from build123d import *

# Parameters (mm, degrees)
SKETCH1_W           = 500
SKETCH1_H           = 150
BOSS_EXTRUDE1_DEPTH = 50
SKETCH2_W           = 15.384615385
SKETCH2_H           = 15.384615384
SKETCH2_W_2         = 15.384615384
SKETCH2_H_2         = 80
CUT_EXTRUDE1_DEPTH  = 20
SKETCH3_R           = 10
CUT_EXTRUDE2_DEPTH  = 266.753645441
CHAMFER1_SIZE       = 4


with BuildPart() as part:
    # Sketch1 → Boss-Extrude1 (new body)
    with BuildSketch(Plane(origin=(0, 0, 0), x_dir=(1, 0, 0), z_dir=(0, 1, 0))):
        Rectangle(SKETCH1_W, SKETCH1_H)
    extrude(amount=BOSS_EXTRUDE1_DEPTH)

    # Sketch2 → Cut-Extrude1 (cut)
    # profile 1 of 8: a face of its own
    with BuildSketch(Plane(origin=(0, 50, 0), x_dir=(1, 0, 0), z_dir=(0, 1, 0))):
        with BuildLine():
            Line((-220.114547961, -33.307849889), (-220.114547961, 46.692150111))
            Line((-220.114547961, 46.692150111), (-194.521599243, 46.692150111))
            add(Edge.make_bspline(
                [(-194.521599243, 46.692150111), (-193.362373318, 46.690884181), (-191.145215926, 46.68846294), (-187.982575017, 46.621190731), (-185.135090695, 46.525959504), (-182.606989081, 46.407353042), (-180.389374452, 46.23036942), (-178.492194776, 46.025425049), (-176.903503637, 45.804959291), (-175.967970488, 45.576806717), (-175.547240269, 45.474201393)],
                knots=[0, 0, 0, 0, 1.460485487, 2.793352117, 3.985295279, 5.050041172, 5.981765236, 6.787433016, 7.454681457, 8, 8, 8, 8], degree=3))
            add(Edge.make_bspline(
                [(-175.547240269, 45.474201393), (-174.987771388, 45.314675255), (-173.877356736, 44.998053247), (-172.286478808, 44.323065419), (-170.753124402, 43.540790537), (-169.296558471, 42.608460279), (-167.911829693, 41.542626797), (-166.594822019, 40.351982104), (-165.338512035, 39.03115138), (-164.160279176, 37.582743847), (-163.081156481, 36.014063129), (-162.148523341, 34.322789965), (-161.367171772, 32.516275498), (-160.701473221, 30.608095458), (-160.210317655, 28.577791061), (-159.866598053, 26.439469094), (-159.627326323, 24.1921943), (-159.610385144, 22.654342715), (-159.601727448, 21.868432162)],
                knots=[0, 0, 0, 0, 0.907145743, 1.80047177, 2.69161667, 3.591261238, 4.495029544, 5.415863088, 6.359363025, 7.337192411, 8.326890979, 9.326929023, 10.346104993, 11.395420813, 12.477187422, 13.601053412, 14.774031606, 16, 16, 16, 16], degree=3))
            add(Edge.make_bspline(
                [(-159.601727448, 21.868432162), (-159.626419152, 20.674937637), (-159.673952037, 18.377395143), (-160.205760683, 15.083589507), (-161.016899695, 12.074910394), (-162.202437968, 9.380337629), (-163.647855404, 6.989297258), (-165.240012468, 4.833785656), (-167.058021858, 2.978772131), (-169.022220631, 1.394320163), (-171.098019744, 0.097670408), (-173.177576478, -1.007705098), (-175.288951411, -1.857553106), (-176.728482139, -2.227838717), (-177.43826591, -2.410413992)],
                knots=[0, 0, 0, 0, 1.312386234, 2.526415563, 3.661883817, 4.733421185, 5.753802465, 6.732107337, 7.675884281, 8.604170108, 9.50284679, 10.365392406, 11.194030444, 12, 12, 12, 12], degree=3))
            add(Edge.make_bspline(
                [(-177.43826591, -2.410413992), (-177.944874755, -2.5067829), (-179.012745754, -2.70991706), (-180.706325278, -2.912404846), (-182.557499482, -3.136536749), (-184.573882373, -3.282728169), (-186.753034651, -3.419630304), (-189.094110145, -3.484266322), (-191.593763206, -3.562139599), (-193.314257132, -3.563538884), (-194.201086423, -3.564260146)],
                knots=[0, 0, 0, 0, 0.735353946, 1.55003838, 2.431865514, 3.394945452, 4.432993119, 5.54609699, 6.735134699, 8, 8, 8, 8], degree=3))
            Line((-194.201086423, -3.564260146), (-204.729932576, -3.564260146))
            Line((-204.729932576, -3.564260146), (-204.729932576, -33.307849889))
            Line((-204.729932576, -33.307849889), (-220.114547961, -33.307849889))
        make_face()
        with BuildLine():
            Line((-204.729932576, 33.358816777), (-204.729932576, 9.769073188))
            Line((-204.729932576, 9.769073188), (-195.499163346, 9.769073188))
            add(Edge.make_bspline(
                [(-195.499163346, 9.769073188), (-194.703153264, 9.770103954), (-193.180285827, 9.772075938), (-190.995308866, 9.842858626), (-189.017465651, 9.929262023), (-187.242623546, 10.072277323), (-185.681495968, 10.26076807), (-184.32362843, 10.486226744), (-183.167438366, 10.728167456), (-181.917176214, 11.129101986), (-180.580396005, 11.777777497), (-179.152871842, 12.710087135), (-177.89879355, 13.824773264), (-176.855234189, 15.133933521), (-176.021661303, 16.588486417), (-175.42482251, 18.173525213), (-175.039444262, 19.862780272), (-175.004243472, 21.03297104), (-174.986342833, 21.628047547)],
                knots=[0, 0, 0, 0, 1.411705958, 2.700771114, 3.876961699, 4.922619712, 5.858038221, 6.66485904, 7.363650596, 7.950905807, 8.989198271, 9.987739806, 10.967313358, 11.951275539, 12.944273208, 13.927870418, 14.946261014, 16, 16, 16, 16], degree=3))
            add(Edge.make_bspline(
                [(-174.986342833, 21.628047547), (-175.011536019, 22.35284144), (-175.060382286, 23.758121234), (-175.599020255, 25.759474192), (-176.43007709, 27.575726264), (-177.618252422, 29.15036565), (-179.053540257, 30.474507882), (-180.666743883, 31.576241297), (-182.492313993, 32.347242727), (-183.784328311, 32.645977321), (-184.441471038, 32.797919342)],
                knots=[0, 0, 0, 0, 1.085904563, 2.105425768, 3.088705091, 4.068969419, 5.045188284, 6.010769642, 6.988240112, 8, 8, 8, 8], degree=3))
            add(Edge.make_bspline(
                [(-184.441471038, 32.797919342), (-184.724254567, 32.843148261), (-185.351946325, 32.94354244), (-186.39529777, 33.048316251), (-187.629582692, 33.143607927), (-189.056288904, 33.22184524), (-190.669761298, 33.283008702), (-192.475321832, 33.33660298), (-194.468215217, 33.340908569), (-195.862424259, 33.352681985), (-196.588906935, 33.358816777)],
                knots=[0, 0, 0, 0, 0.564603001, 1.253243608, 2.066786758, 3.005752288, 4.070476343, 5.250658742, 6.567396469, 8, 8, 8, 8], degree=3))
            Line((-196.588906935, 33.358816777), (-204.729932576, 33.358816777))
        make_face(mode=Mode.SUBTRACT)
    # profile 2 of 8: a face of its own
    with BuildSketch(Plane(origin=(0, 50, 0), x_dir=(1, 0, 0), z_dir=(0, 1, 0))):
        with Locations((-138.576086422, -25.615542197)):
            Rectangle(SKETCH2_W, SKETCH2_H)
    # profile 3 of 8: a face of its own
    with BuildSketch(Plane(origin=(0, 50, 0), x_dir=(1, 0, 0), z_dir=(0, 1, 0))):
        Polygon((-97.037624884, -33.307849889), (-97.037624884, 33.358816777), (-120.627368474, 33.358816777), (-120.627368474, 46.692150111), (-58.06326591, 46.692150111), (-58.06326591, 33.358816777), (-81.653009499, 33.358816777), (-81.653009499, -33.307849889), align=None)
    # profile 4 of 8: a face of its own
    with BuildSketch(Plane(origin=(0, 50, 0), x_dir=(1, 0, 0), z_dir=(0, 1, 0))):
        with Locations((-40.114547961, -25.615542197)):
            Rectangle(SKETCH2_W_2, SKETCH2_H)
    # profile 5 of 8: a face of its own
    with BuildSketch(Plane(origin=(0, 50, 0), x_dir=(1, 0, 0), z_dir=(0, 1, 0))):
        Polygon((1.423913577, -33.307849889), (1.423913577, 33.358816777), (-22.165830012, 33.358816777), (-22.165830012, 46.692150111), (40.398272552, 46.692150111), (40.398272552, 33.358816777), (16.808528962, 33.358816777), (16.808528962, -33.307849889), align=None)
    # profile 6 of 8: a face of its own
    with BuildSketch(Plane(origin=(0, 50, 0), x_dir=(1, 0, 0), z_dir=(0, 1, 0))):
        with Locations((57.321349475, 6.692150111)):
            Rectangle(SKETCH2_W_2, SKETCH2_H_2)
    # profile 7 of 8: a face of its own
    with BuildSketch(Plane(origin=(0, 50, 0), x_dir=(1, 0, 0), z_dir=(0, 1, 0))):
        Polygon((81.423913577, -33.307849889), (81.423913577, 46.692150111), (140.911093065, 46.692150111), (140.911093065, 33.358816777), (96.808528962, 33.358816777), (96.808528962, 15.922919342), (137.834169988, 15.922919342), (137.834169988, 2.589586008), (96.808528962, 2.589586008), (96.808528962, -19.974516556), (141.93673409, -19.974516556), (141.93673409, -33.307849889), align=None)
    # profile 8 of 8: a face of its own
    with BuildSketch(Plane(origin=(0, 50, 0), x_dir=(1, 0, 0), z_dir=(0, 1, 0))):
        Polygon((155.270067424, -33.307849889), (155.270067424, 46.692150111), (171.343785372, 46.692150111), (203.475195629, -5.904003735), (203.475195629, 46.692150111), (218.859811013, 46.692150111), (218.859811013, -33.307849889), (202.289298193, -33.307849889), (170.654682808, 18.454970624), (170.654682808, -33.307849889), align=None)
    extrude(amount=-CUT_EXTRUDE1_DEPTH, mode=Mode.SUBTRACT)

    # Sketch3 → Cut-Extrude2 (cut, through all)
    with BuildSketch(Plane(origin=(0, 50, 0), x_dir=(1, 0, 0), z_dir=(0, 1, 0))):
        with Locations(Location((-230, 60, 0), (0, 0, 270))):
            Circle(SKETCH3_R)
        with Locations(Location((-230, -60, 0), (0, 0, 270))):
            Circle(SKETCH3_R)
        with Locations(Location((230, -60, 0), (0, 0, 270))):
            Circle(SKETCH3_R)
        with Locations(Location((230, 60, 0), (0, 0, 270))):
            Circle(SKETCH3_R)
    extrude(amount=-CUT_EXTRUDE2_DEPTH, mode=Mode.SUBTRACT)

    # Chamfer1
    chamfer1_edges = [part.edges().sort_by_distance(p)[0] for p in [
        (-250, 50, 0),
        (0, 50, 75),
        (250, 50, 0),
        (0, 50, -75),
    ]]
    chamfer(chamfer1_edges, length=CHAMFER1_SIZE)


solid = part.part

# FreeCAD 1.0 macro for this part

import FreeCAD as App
import Part
import Sketcher
from FreeCAD import Vector


def edges_at(feature, points):
    """Names of the edges that pass closest to the given points."""
    edges = feature.Shape.Edges
    near = lambda p: min(range(len(edges)), key=lambda i: edges[i].distToShape(Part.Vertex(*p))[0])
    return sorted({f"Edge{near(p) + 1}" for p in points})

doc = App.newDocument("Part")
body = doc.addObject("PartDesign::Body", "Body")

# Sketch on XZ plane
sketch1 = body.newObject("Sketcher::SketchObject", "Sketch")
sketch1.AttachmentSupport = (doc.getObject("XZ_Plane"), [""])
sketch1.MapMode = "FlatFace"
sketch1.addGeometry([
    Part.LineSegment(Vector(-250, -75, 0), Vector(-250, 75, 0)),
    Part.LineSegment(Vector(-250, 75, 0), Vector(250, 75, 0)),
    Part.LineSegment(Vector(250, 75, 0), Vector(250, -75, 0)),
    Part.LineSegment(Vector(250, -75, 0), Vector(-250, -75, 0)),
], False)
sketch1.addConstraint([
    Sketcher.Constraint("Coincident", 0, 2, 1, 1),
    Sketcher.Constraint("Coincident", 1, 2, 2, 1),
    Sketcher.Constraint("Coincident", 2, 2, 3, 1),
    Sketcher.Constraint("Coincident", 3, 2, 0, 1),
    Sketcher.Constraint("Vertical", 0),
    Sketcher.Constraint("Horizontal", 1),
    Sketcher.Constraint("Vertical", 2),
    Sketcher.Constraint("Horizontal", 3),
    Sketcher.Constraint("Symmetric", 0, 2, 2, 2, -1, 1),
    Sketcher.Constraint("DistanceX", 1, 1, 1, 2, 500.0),
    Sketcher.Constraint("DistanceY", 0, 1, 0, 2, 150.0),
])
pad1 = body.newObject("PartDesign::Pad", "Pad")
pad1.Profile = sketch1
pad1.Length = 50
pad1.Reversed = True

# Sketch on XZ plane
sketch2 = body.newObject("Sketcher::SketchObject", "Sketch001")
sketch2.AttachmentSupport = (doc.getObject("XZ_Plane"), [""])
sketch2.MapMode = "FlatFace"
sketch2.AttachmentOffset = App.Placement(Vector(0, 0, -50), App.Rotation())
sketch2.addGeometry([
    Part.LineSegment(Vector(-220.114548, -46.69215, 0), Vector(-220.114548, 33.30785, 0)),  # 0
    Part.LineSegment(Vector(-220.114548, 33.30785, 0), Vector(-204.729933, 33.30785, 0)),  # 1
    Part.LineSegment(Vector(-204.729933, 33.30785, 0), Vector(-204.729933, 3.56426, 0)),  # 2
    Part.LineSegment(Vector(-204.729933, 3.56426, 0), Vector(-194.201086, 3.56426, 0)),  # 3
    Part.BSplineCurve([Vector(-177.438266, 2.410414, 0), Vector(-177.944875, 2.506783, 0), Vector(-179.012746, 2.709917, 0), Vector(-180.706325, 2.912405, 0), Vector(-182.557499, 3.136537, 0), Vector(-184.573882, 3.282728, 0), Vector(-186.753035, 3.41963, 0), Vector(-189.09411, 3.484266, 0), Vector(-191.593763, 3.56214, 0), Vector(-193.314257, 3.563539, 0), Vector(-194.201086, 3.56426, 0)], [4, 1, 1, 1, 1, 1, 1, 1, 4], [0, 0.735353946, 1.55003838, 2.431865514, 3.394945452, 4.432993119, 5.54609699, 6.735134699, 8], False, 3, [1, 1, 1, 1, 1, 1, 1, 1, 1, 1, 1], False),  # 4
    Part.BSplineCurve([Vector(-159.601727, -21.868432, 0), Vector(-159.626419, -20.674938, 0), Vector(-159.673952, -18.377395, 0), Vector(-160.205761, -15.08359, 0), Vector(-161.0169, -12.07491, 0), Vector(-162.202438, -9.380338, 0), Vector(-163.647855, -6.989297, 0), Vector(-165.240012, -4.833786, 0), Vector(-167.058022, -2.978772, 0), Vector(-169.022221, -1.39432, 0), Vector(-171.09802, -0.09767, 0), Vector(-173.177576, 1.007705, 0), Vector(-175.288951, 1.857553, 0), Vector(-176.728482, 2.227839, 0), Vector(-177.438266, 2.410414, 0)], [4, 1, 1, 1, 1, 1, 1, 1, 1, 1, 1, 1, 4], [0, 1.312386234, 2.526415563, 3.661883817, 4.733421185, 5.753802465, 6.732107337, 7.675884281, 8.604170108, 9.50284679, 10.365392406, 11.194030444, 12], False, 3, [1, 1, 1, 1, 1, 1, 1, 1, 1, 1, 1, 1, 1, 1, 1], False),  # 5
    Part.BSplineCurve([Vector(-175.54724, -45.474201, 0), Vector(-174.987771, -45.314675, 0), Vector(-173.877357, -44.998053, 0), Vector(-172.286479, -44.323065, 0), Vector(-170.753124, -43.540791, 0), Vector(-169.296558, -42.60846, 0), Vector(-167.91183, -41.542627, 0), Vector(-166.594822, -40.351982, 0), Vector(-165.338512, -39.031151, 0), Vector(-164.160279, -37.582744, 0), Vector(-163.081156, -36.014063, 0), Vector(-162.148523, -34.32279, 0), Vector(-161.367172, -32.516275, 0), Vector(-160.701473, -30.608095, 0), Vector(-160.210318, -28.577791, 0), Vector(-159.866598, -26.439469, 0), Vector(-159.627326, -24.192194, 0), Vector(-159.610385, -22.654343, 0), Vector(-159.601727, -21.868432, 0)], [4, 1, 1, 1, 1, 1, 1, 1, 1, 1, 1, 1, 1, 1, 1, 1, 4], [0, 0.907145743, 1.80047177, 2.69161667, 3.591261238, 4.495029544, 5.415863088, 6.359363025, 7.337192411, 8.326890979, 9.326929023, 10.346104993, 11.395420813, 12.477187422, 13.601053412, 14.774031606, 16], False, 3, [1, 1, 1, 1, 1, 1, 1, 1, 1, 1, 1, 1, 1, 1, 1, 1, 1, 1, 1], False),  # 6
    Part.BSplineCurve([Vector(-194.521599, -46.69215, 0), Vector(-193.362373, -46.690884, 0), Vector(-191.145216, -46.688463, 0), Vector(-187.982575, -46.621191, 0), Vector(-185.135091, -46.52596, 0), Vector(-182.606989, -46.407353, 0), Vector(-180.389374, -46.230369, 0), Vector(-178.492195, -46.025425, 0), Vector(-176.903504, -45.804959, 0), Vector(-175.96797, -45.576807, 0), Vector(-175.54724, -45.474201, 0)], [4, 1, 1, 1, 1, 1, 1, 1, 4], [0, 1.460485487, 2.793352117, 3.985295279, 5.050041172, 5.981765236, 6.787433016, 7.454681457, 8], False, 3, [1, 1, 1, 1, 1, 1, 1, 1, 1, 1, 1], False),  # 7
    Part.LineSegment(Vector(-194.521599, -46.69215, 0), Vector(-220.114548, -46.69215, 0)),  # 8
    Part.LineSegment(Vector(-204.729933, -33.358817, 0), Vector(-196.588907, -33.358817, 0)),  # 9
    Part.BSplineCurve([Vector(-184.441471, -32.797919, 0), Vector(-184.724255, -32.843148, 0), Vector(-185.351946, -32.943542, 0), Vector(-186.395298, -33.048316, 0), Vector(-187.629583, -33.143608, 0), Vector(-189.056289, -33.221845, 0), Vector(-190.669761, -33.283009, 0), Vector(-192.475322, -33.336603, 0), Vector(-194.468215, -33.340909, 0), Vector(-195.862424, -33.352682, 0), Vector(-196.588907, -33.358817, 0)], [4, 1, 1, 1, 1, 1, 1, 1, 4], [0, 0.564603001, 1.253243608, 2.066786758, 3.005752288, 4.070476343, 5.250658742, 6.567396469, 8], False, 3, [1, 1, 1, 1, 1, 1, 1, 1, 1, 1, 1], False),  # 10
    Part.BSplineCurve([Vector(-174.986343, -21.628048, 0), Vector(-175.011536, -22.352841, 0), Vector(-175.060382, -23.758121, 0), Vector(-175.59902, -25.759474, 0), Vector(-176.430077, -27.575726, 0), Vector(-177.618252, -29.150366, 0), Vector(-179.05354, -30.474508, 0), Vector(-180.666744, -31.576241, 0), Vector(-182.492314, -32.347243, 0), Vector(-183.784328, -32.645977, 0), Vector(-184.441471, -32.797919, 0)], [4, 1, 1, 1, 1, 1, 1, 1, 4], [0, 1.085904563, 2.105425768, 3.088705091, 4.068969419, 5.045188284, 6.010769642, 6.988240112, 8], False, 3, [1, 1, 1, 1, 1, 1, 1, 1, 1, 1, 1], False),  # 11
    Part.BSplineCurve([Vector(-195.499163, -9.769073, 0), Vector(-194.703153, -9.770104, 0), Vector(-193.180286, -9.772076, 0), Vector(-190.995309, -9.842859, 0), Vector(-189.017466, -9.929262, 0), Vector(-187.242624, -10.072277, 0), Vector(-185.681496, -10.260768, 0), Vector(-184.323628, -10.486227, 0), Vector(-183.167438, -10.728167, 0), Vector(-181.917176, -11.129102, 0), Vector(-180.580396, -11.777777, 0), Vector(-179.152872, -12.710087, 0), Vector(-177.898794, -13.824773, 0), Vector(-176.855234, -15.133934, 0), Vector(-176.021661, -16.588486, 0), Vector(-175.424823, -18.173525, 0), Vector(-175.039444, -19.86278, 0), Vector(-175.004243, -21.032971, 0), Vector(-174.986343, -21.628048, 0)], [4, 1, 1, 1, 1, 1, 1, 1, 1, 1, 1, 1, 1, 1, 1, 1, 4], [0, 1.411705958, 2.700771114, 3.876961699, 4.922619712, 5.858038221, 6.66485904, 7.363650596, 7.950905807, 8.989198271, 9.987739806, 10.967313358, 11.951275539, 12.944273208, 13.927870418, 14.946261014, 16], False, 3, [1, 1, 1, 1, 1, 1, 1, 1, 1, 1, 1, 1, 1, 1, 1, 1, 1, 1, 1], False),  # 12
    Part.LineSegment(Vector(-195.499163, -9.769073, 0), Vector(-204.729933, -9.769073, 0)),  # 13
    Part.LineSegment(Vector(-204.729933, -9.769073, 0), Vector(-204.729933, -33.358817, 0)),  # 14
    Part.LineSegment(Vector(-146.268394, 17.923235, 0), Vector(-146.268394, 33.30785, 0)),  # 15
    Part.LineSegment(Vector(-146.268394, 33.30785, 0), Vector(-130.883779, 33.30785, 0)),  # 16
    Part.LineSegment(Vector(-130.883779, 33.30785, 0), Vector(-130.883779, 17.923235, 0)),  # 17
    Part.LineSegment(Vector(-130.883779, 17.923235, 0), Vector(-146.268394, 17.923235, 0)),  # 18
    Part.LineSegment(Vector(-97.037625, -33.358817, 0), Vector(-97.037625, 33.30785, 0)),  # 19
    Part.LineSegment(Vector(-97.037625, 33.30785, 0), Vector(-81.653009, 33.30785, 0)),  # 20
    Part.LineSegment(Vector(-81.653009, 33.30785, 0), Vector(-81.653009, -33.358817, 0)),  # 21
    Part.LineSegment(Vector(-81.653009, -33.358817, 0), Vector(-58.063266, -33.358817, 0)),  # 22
    Part.LineSegment(Vector(-58.063266, -33.358817, 0), Vector(-58.063266, -46.69215, 0)),  # 23
    Part.LineSegment(Vector(-58.063266, -46.69215, 0), Vector(-120.627368, -46.69215, 0)),  # 24
    Part.LineSegment(Vector(-120.627368, -46.69215, 0), Vector(-120.627368, -33.358817, 0)),  # 25
    Part.LineSegment(Vector(-120.627368, -33.358817, 0), Vector(-97.037625, -33.358817, 0)),  # 26
    Part.LineSegment(Vector(-47.806856, 17.923235, 0), Vector(-47.806856, 33.30785, 0)),  # 27
    Part.LineSegment(Vector(-47.806856, 33.30785, 0), Vector(-32.42224, 33.30785, 0)),  # 28
    Part.LineSegment(Vector(-32.42224, 33.30785, 0), Vector(-32.42224, 17.923235, 0)),  # 29
    Part.LineSegment(Vector(-32.42224, 17.923235, 0), Vector(-47.806856, 17.923235, 0)),  # 30
    Part.LineSegment(Vector(1.423914, -33.358817, 0), Vector(1.423914, 33.30785, 0)),  # 31
    Part.LineSegment(Vector(1.423914, 33.30785, 0), Vector(16.808529, 33.30785, 0)),  # 32
    Part.LineSegment(Vector(16.808529, 33.30785, 0), Vector(16.808529, -33.358817, 0)),  # 33
    Part.LineSegment(Vector(16.808529, -33.358817, 0), Vector(40.398273, -33.358817, 0)),  # 34
    Part.LineSegment(Vector(40.398273, -33.358817, 0), Vector(40.398273, -46.69215, 0)),  # 35
    Part.LineSegment(Vector(40.398273, -46.69215, 0), Vector(-22.16583, -46.69215, 0)),  # 36
    Part.LineSegment(Vector(-22.16583, -46.69215, 0), Vector(-22.16583, -33.358817, 0)),  # 37
    Part.LineSegment(Vector(-22.16583, -33.358817, 0), Vector(1.423914, -33.358817, 0)),  # 38
    Part.LineSegment(Vector(49.629042, -46.69215, 0), Vector(49.629042, 33.30785, 0)),  # 39
    Part.LineSegment(Vector(49.629042, 33.30785, 0), Vector(65.013657, 33.30785, 0)),  # 40
    Part.LineSegment(Vector(65.013657, 33.30785, 0), Vector(65.013657, -46.69215, 0)),  # 41
    Part.LineSegment(Vector(65.013657, -46.69215, 0), Vector(49.629042, -46.69215, 0)),  # 42
    Part.LineSegment(Vector(81.423914, -46.69215, 0), Vector(81.423914, 33.30785, 0)),  # 43
    Part.LineSegment(Vector(81.423914, 33.30785, 0), Vector(141.936734, 33.30785, 0)),  # 44
    Part.LineSegment(Vector(141.936734, 33.30785, 0), Vector(141.936734, 19.974517, 0)),  # 45
    Part.LineSegment(Vector(141.936734, 19.974517, 0), Vector(96.808529, 19.974517, 0)),  # 46
    Part.LineSegment(Vector(96.808529, 19.974517, 0), Vector(96.808529, -2.589586, 0)),  # 47
    Part.LineSegment(Vector(96.808529, -2.589586, 0), Vector(137.83417, -2.589586, 0)),  # 48
    Part.LineSegment(Vector(137.83417, -2.589586, 0), Vector(137.83417, -15.922919, 0)),  # 49
    Part.LineSegment(Vector(137.83417, -15.922919, 0), Vector(96.808529, -15.922919, 0)),  # 50
    Part.LineSegment(Vector(96.808529, -15.922919, 0), Vector(96.808529, -33.358817, 0)),  # 51
    Part.LineSegment(Vector(96.808529, -33.358817, 0), Vector(140.911093, -33.358817, 0)),  # 52
    Part.LineSegment(Vector(140.911093, -33.358817, 0), Vector(140.911093, -46.69215, 0)),  # 53
    Part.LineSegment(Vector(140.911093, -46.69215, 0), Vector(81.423914, -46.69215, 0)),  # 54
    Part.LineSegment(Vector(155.270067, -46.69215, 0), Vector(155.270067, 33.30785, 0)),  # 55
    Part.LineSegment(Vector(155.270067, 33.30785, 0), Vector(170.654683, 33.30785, 0)),  # 56
    Part.LineSegment(Vector(170.654683, 33.30785, 0), Vector(170.654683, -18.454971, 0)),  # 57
    Part.LineSegment(Vector(170.654683, -18.454971, 0), Vector(202.289298, 33.30785, 0)),  # 58
    Part.LineSegment(Vector(202.289298, 33.30785, 0), Vector(218.859811, 33.30785, 0)),  # 59
    Part.LineSegment(Vector(218.859811, 33.30785, 0), Vector(218.859811, -46.69215, 0)),  # 60
    Part.LineSegment(Vector(218.859811, -46.69215, 0), Vector(203.475196, -46.69215, 0)),  # 61
    Part.LineSegment(Vector(203.475196, -46.69215, 0), Vector(203.475196, 5.904004, 0)),  # 62
    Part.LineSegment(Vector(203.475196, 5.904004, 0), Vector(171.343785, -46.69215, 0)),  # 63
    Part.LineSegment(Vector(171.343785, -46.69215, 0), Vector(155.270067, -46.69215, 0)),  # 64
], False)
sketch2.addConstraint([
    Sketcher.Constraint("Block", 4),
    Sketcher.Constraint("Block", 5),
    Sketcher.Constraint("Block", 6),
    Sketcher.Constraint("Block", 7),
    Sketcher.Constraint("Block", 10),
    Sketcher.Constraint("Block", 11),
    Sketcher.Constraint("Block", 12),
    Sketcher.Constraint("Coincident", 0, 2, 1, 1),
    Sketcher.Constraint("Coincident", 1, 2, 2, 1),
    Sketcher.Constraint("Coincident", 2, 2, 3, 1),
    Sketcher.Constraint("Coincident", 3, 2, 4, 2),
    Sketcher.Constraint("Coincident", 7, 1, 8, 1),
    Sketcher.Constraint("Coincident", 8, 2, 0, 1),
    Sketcher.Constraint("Coincident", 9, 2, 10, 2),
    Sketcher.Constraint("Coincident", 12, 1, 13, 1),
    Sketcher.Constraint("Coincident", 13, 2, 14, 1),
    Sketcher.Constraint("Coincident", 14, 2, 9, 1),
    Sketcher.Constraint("Coincident", 15, 2, 16, 1),
    Sketcher.Constraint("Coincident", 16, 2, 17, 1),
    Sketcher.Constraint("Coincident", 17, 2, 18, 1),
    Sketcher.Constraint("Coincident", 18, 2, 15, 1),
    Sketcher.Constraint("Coincident", 19, 2, 20, 1),
    Sketcher.Constraint("Coincident", 20, 2, 21, 1),
    Sketcher.Constraint("Coincident", 21, 2, 22, 1),
    Sketcher.Constraint("Coincident", 22, 2, 23, 1),
    Sketcher.Constraint("Coincident", 23, 2, 24, 1),
    Sketcher.Constraint("Coincident", 24, 2, 25, 1),
    Sketcher.Constraint("Coincident", 25, 2, 26, 1),
    Sketcher.Constraint("Coincident", 26, 2, 19, 1),
    Sketcher.Constraint("Coincident", 27, 2, 28, 1),
    Sketcher.Constraint("Coincident", 28, 2, 29, 1),
    Sketcher.Constraint("Coincident", 29, 2, 30, 1),
    Sketcher.Constraint("Coincident", 30, 2, 27, 1),
    Sketcher.Constraint("Coincident", 31, 2, 32, 1),
    Sketcher.Constraint("Coincident", 32, 2, 33, 1),
    Sketcher.Constraint("Coincident", 33, 2, 34, 1),
    Sketcher.Constraint("Coincident", 34, 2, 35, 1),
    Sketcher.Constraint("Coincident", 35, 2, 36, 1),
    Sketcher.Constraint("Coincident", 36, 2, 37, 1),
    Sketcher.Constraint("Coincident", 37, 2, 38, 1),
    Sketcher.Constraint("Coincident", 38, 2, 31, 1),
    Sketcher.Constraint("Coincident", 39, 2, 40, 1),
    Sketcher.Constraint("Coincident", 40, 2, 41, 1),
    Sketcher.Constraint("Coincident", 41, 2, 42, 1),
    Sketcher.Constraint("Coincident", 42, 2, 39, 1),
    Sketcher.Constraint("Coincident", 43, 2, 44, 1),
    Sketcher.Constraint("Coincident", 44, 2, 45, 1),
    Sketcher.Constraint("Coincident", 45, 2, 46, 1),
    Sketcher.Constraint("Coincident", 46, 2, 47, 1),
    Sketcher.Constraint("Coincident", 47, 2, 48, 1),
    Sketcher.Constraint("Coincident", 48, 2, 49, 1),
    Sketcher.Constraint("Coincident", 49, 2, 50, 1),
    Sketcher.Constraint("Coincident", 50, 2, 51, 1),
    Sketcher.Constraint("Coincident", 51, 2, 52, 1),
    Sketcher.Constraint("Coincident", 52, 2, 53, 1),
    Sketcher.Constraint("Coincident", 53, 2, 54, 1),
    Sketcher.Constraint("Coincident", 54, 2, 43, 1),
    Sketcher.Constraint("Coincident", 55, 2, 56, 1),
    Sketcher.Constraint("Coincident", 56, 2, 57, 1),
    Sketcher.Constraint("Coincident", 57, 2, 58, 1),
    Sketcher.Constraint("Coincident", 58, 2, 59, 1),
    Sketcher.Constraint("Coincident", 59, 2, 60, 1),
    Sketcher.Constraint("Coincident", 60, 2, 61, 1),
    Sketcher.Constraint("Coincident", 61, 2, 62, 1),
    Sketcher.Constraint("Coincident", 62, 2, 63, 1),
    Sketcher.Constraint("Coincident", 63, 2, 64, 1),
    Sketcher.Constraint("Coincident", 64, 2, 55, 1),
    Sketcher.Constraint("Vertical", 0),
    Sketcher.Constraint("Horizontal", 1),
    Sketcher.Constraint("Vertical", 2),
    Sketcher.Constraint("Horizontal", 3),
    Sketcher.Constraint("Horizontal", 8),
    Sketcher.Constraint("Horizontal", 9),
    Sketcher.Constraint("Horizontal", 13),
    Sketcher.Constraint("Vertical", 14),
    Sketcher.Constraint("Vertical", 15),
    Sketcher.Constraint("Horizontal", 16),
    Sketcher.Constraint("Vertical", 17),
    Sketcher.Constraint("Horizontal", 18),
    Sketcher.Constraint("Vertical", 19),
    Sketcher.Constraint("Horizontal", 20),
    Sketcher.Constraint("Vertical", 21),
    Sketcher.Constraint("Horizontal", 22),
    Sketcher.Constraint("Vertical", 23),
    Sketcher.Constraint("Horizontal", 24),
    Sketcher.Constraint("Vertical", 25),
    Sketcher.Constraint("Horizontal", 26),
    Sketcher.Constraint("Vertical", 27),
    Sketcher.Constraint("Horizontal", 28),
    Sketcher.Constraint("Vertical", 29),
    Sketcher.Constraint("Horizontal", 30),
    Sketcher.Constraint("Vertical", 31),
    Sketcher.Constraint("Horizontal", 32),
    Sketcher.Constraint("Vertical", 33),
    Sketcher.Constraint("Horizontal", 34),
    Sketcher.Constraint("Vertical", 35),
    Sketcher.Constraint("Horizontal", 36),
    Sketcher.Constraint("Vertical", 37),
    Sketcher.Constraint("Horizontal", 38),
    Sketcher.Constraint("Vertical", 39),
    Sketcher.Constraint("Horizontal", 40),
    Sketcher.Constraint("Vertical", 41),
    Sketcher.Constraint("Horizontal", 42),
    Sketcher.Constraint("Vertical", 43),
    Sketcher.Constraint("Horizontal", 44),
    Sketcher.Constraint("Vertical", 45),
    Sketcher.Constraint("Horizontal", 46),
    Sketcher.Constraint("Vertical", 47),
    Sketcher.Constraint("Horizontal", 48),
    Sketcher.Constraint("Vertical", 49),
    Sketcher.Constraint("Horizontal", 50),
    Sketcher.Constraint("Vertical", 51),
    Sketcher.Constraint("Horizontal", 52),
    Sketcher.Constraint("Vertical", 53),
    Sketcher.Constraint("Horizontal", 54),
    Sketcher.Constraint("Vertical", 55),
    Sketcher.Constraint("Horizontal", 56),
    Sketcher.Constraint("Vertical", 57),
    Sketcher.Constraint("Horizontal", 59),
    Sketcher.Constraint("Vertical", 60),
    Sketcher.Constraint("Horizontal", 61),
    Sketcher.Constraint("Vertical", 62),
    Sketcher.Constraint("Horizontal", 64),
    Sketcher.Constraint("DistanceY", 0, 1, 0, 2, 80.0),
    Sketcher.Constraint("DistanceY", 39, 1, 39, 2, 80.0),
    Sketcher.Constraint("DistanceY", 43, 1, 43, 2, 80.0),
    Sketcher.Constraint("DistanceY", 55, 1, 55, 2, 80.0),
    Sketcher.Constraint("DistanceY", 60, 2, 60, 1, 80.0),
    Sketcher.Constraint("DistanceY", 23, 2, 20, 2, 80.0),
    Sketcher.Constraint("DistanceY", 23, 2, 27, 2, 80.0),
    Sketcher.Constraint("DistanceY", 35, 2, 32, 2, 80.0),
    Sketcher.Constraint("DistanceY", 35, 2, 39, 2, 80.0),
    Sketcher.Constraint("DistanceX", 31, 2, 43, 2, 80.0),
    Sketcher.Constraint("DistanceY", 41, 2, 44, 2, 80.0),
    Sketcher.Constraint("DistanceX", 8, 2, 8, 1, 25.592949),
    Sketcher.Constraint("DistanceX", 13, 2, 13, 1, 9.230769),
    Sketcher.Constraint("DistanceX", 44, 1, 44, 2, 60.512821),
    Sketcher.Constraint("DistanceX", 48, 1, 48, 2, 41.025641),
    Sketcher.Constraint("DistanceX", 50, 2, 50, 1, 41.025641),
    Sketcher.Constraint("DistanceX", 54, 2, 54, 1, 59.487179),
    Sketcher.Constraint("DistanceY", 57, 2, 57, 1, 51.762821),
    Sketcher.Constraint("DistanceX", -1, 1, 58, 2, 202.289298),
    Sketcher.Constraint("DistanceX", 1, 1, 1, 2, 15.384615),
    Sketcher.Constraint("DistanceX", 16, 1, 16, 2, 15.384615),
    Sketcher.Constraint("DistanceX", 20, 1, 20, 2, 15.384615),
    Sketcher.Constraint("DistanceX", 22, 1, 22, 2, 23.589744),
    Sketcher.Constraint("DistanceX", 24, 2, 24, 1, 62.564103),
    Sketcher.Constraint("DistanceX", 28, 1, 28, 2, 15.384615),
    Sketcher.Constraint("DistanceX", 32, 1, 32, 2, 15.384615),
    Sketcher.Constraint("DistanceX", 34, 1, 34, 2, 23.589744),
    Sketcher.Constraint("DistanceX", 36, 2, 36, 1, 62.564103),
    Sketcher.Constraint("DistanceX", 40, 1, 40, 2, 15.384615),
    Sketcher.Constraint("DistanceX", 46, 2, 46, 1, 45.128205),
    Sketcher.Constraint("DistanceX", 56, 1, 56, 2, 15.384615),
    Sketcher.Constraint("DistanceX", 59, 1, 59, 2, 16.570513),
    Sketcher.Constraint("DistanceX", 61, 2, 61, 1, 15.384615),
    Sketcher.Constraint("DistanceX", 64, 2, 64, 1, 16.073718),
    Sketcher.Constraint("DistanceY", 15, 1, 15, 2, 15.384615),
    Sketcher.Constraint("DistanceY", 19, 1, 19, 2, 66.666667),
    Sketcher.Constraint("DistanceY", 21, 2, 21, 1, 66.666667),
    Sketcher.Constraint("DistanceY", 27, 1, 27, 2, 15.384615),
    Sketcher.Constraint("DistanceY", 31, 1, 31, 2, 66.666667),
    Sketcher.Constraint("DistanceY", 33, 2, 33, 1, 66.666667),
    Sketcher.Constraint("DistanceY", 45, 2, 45, 1, 13.333333),
    Sketcher.Constraint("DistanceY", 47, 2, 47, 1, 22.564103),
    Sketcher.Constraint("DistanceY", 49, 2, 49, 1, 13.333333),
    Sketcher.Constraint("DistanceY", 51, 2, 51, 1, 17.435897),
    Sketcher.Constraint("DistanceY", 62, 1, 62, 2, 52.596154),
    Sketcher.Constraint("DistanceY", -1, 1, 15, 2, 33.30785),
    Sketcher.Constraint("DistanceX", 16, 2, -1, 1, 130.883779),
    Sketcher.Constraint("DistanceY", -1, 1, 19, 2, 33.30785),
    Sketcher.Constraint("DistanceX", 20, 2, -1, 1, 81.653009),
    Sketcher.Constraint("DistanceX", 28, 2, -1, 1, 32.42224),
    Sketcher.Constraint("DistanceY", -1, 1, 31, 2, 33.30785),
    Sketcher.Constraint("DistanceX", -1, 1, 32, 2, 16.808529),
    Sketcher.Constraint("DistanceX", -1, 1, 39, 2, 49.629042),
    Sketcher.Constraint("DistanceY", -1, 1, 55, 2, 33.30785),
    Sketcher.Constraint("DistanceY", -1, 1, 58, 2, 33.30785),
    Sketcher.Constraint("DistanceX", 46, 2, 55, 2, 58.461538),
])
pocket1 = body.newObject("PartDesign::Pocket", "Pocket")
pocket1.Profile = sketch2
pocket1.Length = 20
pocket1.Reversed = True

# Sketch on XZ plane
sketch3 = body.newObject("Sketcher::SketchObject", "Sketch002")
sketch3.AttachmentSupport = (doc.getObject("XZ_Plane"), [""])
sketch3.MapMode = "FlatFace"
sketch3.AttachmentOffset = App.Placement(Vector(0, 0, -50), App.Rotation())
sketch3.addGeometry([
    Part.Circle(Vector(-230, -60, 0), Vector(0, 0, 1), 10),
    Part.Circle(Vector(-230, 60, 0), Vector(0, 0, 1), 10),
    Part.Circle(Vector(230, 60, 0), Vector(0, 0, 1), 10),
    Part.Circle(Vector(230, -60, 0), Vector(0, 0, 1), 10),
], False)
sketch3.addConstraint([
    Sketcher.Constraint("Equal", 0, 1),
    Sketcher.Constraint("Equal", 1, 2),
    Sketcher.Constraint("Equal", 2, 3),
    Sketcher.Constraint("Symmetric", 0, 3, 2, 3, -1, 1),
    Sketcher.Constraint("Symmetric", 1, 3, 3, 3, -1, 1),
    Sketcher.Constraint("Symmetric", 1, 3, 2, 3, -2),
    Sketcher.Constraint("Diameter", 0, 20.0),
    Sketcher.Constraint("DistanceX", 0, 3, -1, 1, 230.0),
    Sketcher.Constraint("DistanceY", 0, 3, -1, 1, 60.0),
])
pocket2 = body.newObject("PartDesign::Pocket", "Pocket001")
pocket2.Profile = sketch3
pocket2.Type = "ThroughAll"
pocket2.Reversed = True
doc.recompute()

chamfer = body.newObject("PartDesign::Chamfer", "Chamfer")
chamfer.Base = (pocket2, edges_at(pocket2, [
    (-250, 50, 0),
    (0, 50, 75),
    (250, 50, 0),
    (0, 50, -75),
]))
chamfer.Size = 4

doc.recompute()
